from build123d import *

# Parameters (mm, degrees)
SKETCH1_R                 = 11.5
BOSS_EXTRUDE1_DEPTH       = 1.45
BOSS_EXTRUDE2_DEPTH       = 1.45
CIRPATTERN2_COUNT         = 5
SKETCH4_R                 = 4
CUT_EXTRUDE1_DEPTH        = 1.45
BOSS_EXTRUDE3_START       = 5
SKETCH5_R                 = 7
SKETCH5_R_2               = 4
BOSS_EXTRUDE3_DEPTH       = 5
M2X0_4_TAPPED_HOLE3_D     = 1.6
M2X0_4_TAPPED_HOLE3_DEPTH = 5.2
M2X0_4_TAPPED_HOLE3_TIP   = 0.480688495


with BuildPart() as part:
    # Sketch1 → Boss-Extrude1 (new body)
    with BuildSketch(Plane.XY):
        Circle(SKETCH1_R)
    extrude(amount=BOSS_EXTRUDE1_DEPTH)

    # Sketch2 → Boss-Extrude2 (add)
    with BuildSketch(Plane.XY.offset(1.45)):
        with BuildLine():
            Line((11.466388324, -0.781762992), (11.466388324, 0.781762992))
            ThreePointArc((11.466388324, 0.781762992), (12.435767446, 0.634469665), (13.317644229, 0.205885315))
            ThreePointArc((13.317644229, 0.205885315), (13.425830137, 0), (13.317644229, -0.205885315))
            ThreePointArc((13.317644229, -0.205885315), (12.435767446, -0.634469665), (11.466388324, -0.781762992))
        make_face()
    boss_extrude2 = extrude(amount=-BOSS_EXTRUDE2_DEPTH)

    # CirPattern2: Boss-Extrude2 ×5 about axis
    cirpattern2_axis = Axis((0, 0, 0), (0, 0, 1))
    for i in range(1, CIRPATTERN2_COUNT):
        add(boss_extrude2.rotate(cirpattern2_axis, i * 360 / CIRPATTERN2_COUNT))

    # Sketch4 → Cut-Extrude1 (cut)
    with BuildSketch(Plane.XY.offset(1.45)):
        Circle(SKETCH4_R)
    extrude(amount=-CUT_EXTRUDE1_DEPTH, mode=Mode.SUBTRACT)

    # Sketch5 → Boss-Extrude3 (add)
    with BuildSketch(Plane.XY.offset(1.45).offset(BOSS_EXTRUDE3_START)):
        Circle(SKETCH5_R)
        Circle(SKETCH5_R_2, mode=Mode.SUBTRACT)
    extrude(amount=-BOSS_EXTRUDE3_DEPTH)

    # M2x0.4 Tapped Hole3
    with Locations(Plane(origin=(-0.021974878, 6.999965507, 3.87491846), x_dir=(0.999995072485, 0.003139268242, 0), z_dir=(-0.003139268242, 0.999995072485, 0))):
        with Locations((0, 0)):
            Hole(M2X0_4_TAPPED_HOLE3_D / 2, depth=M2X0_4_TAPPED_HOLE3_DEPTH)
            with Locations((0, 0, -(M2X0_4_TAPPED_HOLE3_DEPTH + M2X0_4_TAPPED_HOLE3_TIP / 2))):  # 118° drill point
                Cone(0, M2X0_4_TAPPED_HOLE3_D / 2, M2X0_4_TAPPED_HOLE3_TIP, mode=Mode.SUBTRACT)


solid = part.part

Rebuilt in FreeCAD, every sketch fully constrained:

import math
import FreeCAD as App
import Part
import Sketcher

V = App.Vector
Q = App.Units.Quantity

doc = App.newDocument("Part")
body = doc.addObject("PartDesign::Body", "Body")

# Sketch on XY plane
sketch1 = body.newObject("Sketcher::SketchObject", "Sketch")
sketch1.AttachmentSupport = (doc.getObject("XY_Plane"), [""])
sketch1.MapMode = "FlatFace"
sketch1.addGeometry(Part.Circle(V(0, 0, 0), V(0, 0, 1), 11.5), False)
sketch1.addConstraint(Sketcher.Constraint("Coincident", 0, 3, -1, 1))
sketch1.addConstraint(Sketcher.Constraint("Diameter", 0, Q("23 mm")))
pad1 = body.newObject("PartDesign::Pad", "Pad")
pad1.Profile = sketch1
pad1.Length = 1.45

# Sketch on XY plane
sketch2 = body.newObject("Sketcher::SketchObject", "Sketch001")
sketch2.AttachmentSupport = (doc.getObject("XY_Plane"), [""])
sketch2.MapMode = "FlatFace"
sketch2.AttachmentOffset = App.Placement(V(0, 0, 1.45), App.Rotation())
sketch2.addGeometry(Part.LineSegment(V(11.466388, 0.781763, 0), V(11.466388, -0.781763, 0)), False)
sketch2.addGeometry(Part.ArcOfCircle(Part.Circle(V(11.466388, 2.481763, 0), V(0, 0, 1), 3.263526), math.radians(-90), math.radians(-55.440875)), False)
sketch2.addGeometry(Part.ArcOfCircle(Part.Circle(V(13.17583, 0, 0), V(0, 0, 1), 0.25), math.radians(-55.440876), math.radians(55.440876)), False)
sketch2.addGeometry(Part.ArcOfCircle(Part.Circle(V(11.466388, -2.481763, 0), V(0, 0, 1), 3.263526), math.radians(55.440875), math.radians(90)), False)
sketch2.addConstraint(Sketcher.Constraint("Coincident", 0, 2, 1, 1))
sketch2.addConstraint(Sketcher.Constraint("Tangent", 1, 2, 2, 1))
sketch2.addConstraint(Sketcher.Constraint("Tangent", 2, 2, 3, 1))
sketch2.addConstraint(Sketcher.Constraint("Coincident", 3, 2, 0, 1))
sketch2.addConstraint(Sketcher.Constraint("Vertical", 0))
sketch2.addConstraint(Sketcher.Constraint("Equal", 1, 3))
sketch2.addConstraint(Sketcher.Constraint("Symmetric", 1, 3, 3, 3, -1))
sketch2.addConstraint(Sketcher.Constraint("Vertical", 3, 3, 0, 2))
sketch2.addConstraint(Sketcher.Constraint("Radius", 2, Q("0.25 mm")))
sketch2.addConstraint(Sketcher.Constraint("DistanceY", 3, 3, 0, 2, Q("1.7 mm")))
sketch2.addConstraint(Sketcher.Constraint("Radius", 1, Q("3.263526 mm")))
sketch2.addConstraint(Sketcher.Constraint("DistanceX", -1, 1, 1, 3, Q("11.466388 mm")))
pad2 = body.newObject("PartDesign::Pad", "Pad001")
pad2.Profile = sketch2
pad2.Length = 1.45
pad2.Reversed = True
doc.recompute()

polarpattern = body.newObject("PartDesign::PolarPattern", "PolarPattern")
polarpattern.Originals = [pad2]
polarpattern.Axis = (doc.getObject("Z_Axis"), [""])
polarpattern.Angle = 360
polarpattern.Occurrences = 5
body.Tip = polarpattern

# Sketch on XY plane
sketch3 = body.newObject("Sketcher::SketchObject", "Sketch002")
sketch3.AttachmentSupport = (doc.getObject("XY_Plane"), [""])
sketch3.MapMode = "FlatFace"
sketch3.AttachmentOffset = App.Placement(V(0, 0, 1.45), App.Rotation())
sketch3.addGeometry(Part.Circle(V(0, 0, 0), V(0, 0, 1), 4), False)
sketch3.addConstraint(Sketcher.Constraint("Coincident", 0, 3, -1, 1))
sketch3.addConstraint(Sketcher.Constraint("Diameter", 0, Q("8 mm")))
pocket1 = body.newObject("PartDesign::Pocket", "Pocket")
pocket1.Profile = sketch3
pocket1.Length = 1.45

# Sketch on XY plane
sketch4 = body.newObject("Sketcher::SketchObject", "Sketch003")
sketch4.AttachmentSupport = (doc.getObject("XY_Plane"), [""])
sketch4.MapMode = "FlatFace"
sketch4.AttachmentOffset = App.Placement(V(0, 0, 6.45), App.Rotation())
sketch4.addGeometry(Part.Circle(V(0, 0, 0), V(0, 0, 1), 7), False)
sketch4.addGeometry(Part.Circle(V(0, 0, 0), V(0, 0, 1), 4), False)
sketch4.addConstraint(Sketcher.Constraint("Coincident", 0, 3, -1, 1))
sketch4.addConstraint(Sketcher.Constraint("Coincident", 1, 3, -1, 1))
sketch4.addConstraint(Sketcher.Constraint("Diameter", 0, Q("14 mm")))
sketch4.addConstraint(Sketcher.Constraint("Diameter", 1, Q("8 mm")))
pad3 = body.newObject("PartDesign::Pad", "Pad002")
pad3.Profile = sketch4
pad3.Length = 5
pad3.Reversed = True

# Sketch on an angled plane
sketch5 = body.newObject("Sketcher::SketchObject", "Sketch004")
sketch5.Placement = App.Placement(V(-0.021975, 6.999966, 0), App.Rotation(V(0.999995072, 0.003139268, 0), V(0, 0, -0.999999999), V(-0.003139268, 0.999995072, 0), "ZXY"))
sketch5.addGeometry(Part.Circle(V(0, -3.874918, 0), V(0, 0, 1), 0.8), False)
sketch5.addConstraint(Sketcher.Constraint("PointOnObject", 0, 3, -2))
sketch5.addConstraint(Sketcher.Constraint("Diameter", 0, Q("1.6 mm")))
sketch5.addConstraint(Sketcher.Constraint("DistanceY", 0, 3, -1, 1, Q("3.874918 mm")))
doc.recompute()
hole = body.newObject("PartDesign::Hole", "Hole")
hole.Profile = sketch5
hole.ThreadType = "None"
hole.Diameter = 1.6
hole.DepthType = "Dimension"
hole.Depth = 5.2
hole.DrillPoint = "Angled"
hole.DrillPointAngle = 118

doc.recompute()
